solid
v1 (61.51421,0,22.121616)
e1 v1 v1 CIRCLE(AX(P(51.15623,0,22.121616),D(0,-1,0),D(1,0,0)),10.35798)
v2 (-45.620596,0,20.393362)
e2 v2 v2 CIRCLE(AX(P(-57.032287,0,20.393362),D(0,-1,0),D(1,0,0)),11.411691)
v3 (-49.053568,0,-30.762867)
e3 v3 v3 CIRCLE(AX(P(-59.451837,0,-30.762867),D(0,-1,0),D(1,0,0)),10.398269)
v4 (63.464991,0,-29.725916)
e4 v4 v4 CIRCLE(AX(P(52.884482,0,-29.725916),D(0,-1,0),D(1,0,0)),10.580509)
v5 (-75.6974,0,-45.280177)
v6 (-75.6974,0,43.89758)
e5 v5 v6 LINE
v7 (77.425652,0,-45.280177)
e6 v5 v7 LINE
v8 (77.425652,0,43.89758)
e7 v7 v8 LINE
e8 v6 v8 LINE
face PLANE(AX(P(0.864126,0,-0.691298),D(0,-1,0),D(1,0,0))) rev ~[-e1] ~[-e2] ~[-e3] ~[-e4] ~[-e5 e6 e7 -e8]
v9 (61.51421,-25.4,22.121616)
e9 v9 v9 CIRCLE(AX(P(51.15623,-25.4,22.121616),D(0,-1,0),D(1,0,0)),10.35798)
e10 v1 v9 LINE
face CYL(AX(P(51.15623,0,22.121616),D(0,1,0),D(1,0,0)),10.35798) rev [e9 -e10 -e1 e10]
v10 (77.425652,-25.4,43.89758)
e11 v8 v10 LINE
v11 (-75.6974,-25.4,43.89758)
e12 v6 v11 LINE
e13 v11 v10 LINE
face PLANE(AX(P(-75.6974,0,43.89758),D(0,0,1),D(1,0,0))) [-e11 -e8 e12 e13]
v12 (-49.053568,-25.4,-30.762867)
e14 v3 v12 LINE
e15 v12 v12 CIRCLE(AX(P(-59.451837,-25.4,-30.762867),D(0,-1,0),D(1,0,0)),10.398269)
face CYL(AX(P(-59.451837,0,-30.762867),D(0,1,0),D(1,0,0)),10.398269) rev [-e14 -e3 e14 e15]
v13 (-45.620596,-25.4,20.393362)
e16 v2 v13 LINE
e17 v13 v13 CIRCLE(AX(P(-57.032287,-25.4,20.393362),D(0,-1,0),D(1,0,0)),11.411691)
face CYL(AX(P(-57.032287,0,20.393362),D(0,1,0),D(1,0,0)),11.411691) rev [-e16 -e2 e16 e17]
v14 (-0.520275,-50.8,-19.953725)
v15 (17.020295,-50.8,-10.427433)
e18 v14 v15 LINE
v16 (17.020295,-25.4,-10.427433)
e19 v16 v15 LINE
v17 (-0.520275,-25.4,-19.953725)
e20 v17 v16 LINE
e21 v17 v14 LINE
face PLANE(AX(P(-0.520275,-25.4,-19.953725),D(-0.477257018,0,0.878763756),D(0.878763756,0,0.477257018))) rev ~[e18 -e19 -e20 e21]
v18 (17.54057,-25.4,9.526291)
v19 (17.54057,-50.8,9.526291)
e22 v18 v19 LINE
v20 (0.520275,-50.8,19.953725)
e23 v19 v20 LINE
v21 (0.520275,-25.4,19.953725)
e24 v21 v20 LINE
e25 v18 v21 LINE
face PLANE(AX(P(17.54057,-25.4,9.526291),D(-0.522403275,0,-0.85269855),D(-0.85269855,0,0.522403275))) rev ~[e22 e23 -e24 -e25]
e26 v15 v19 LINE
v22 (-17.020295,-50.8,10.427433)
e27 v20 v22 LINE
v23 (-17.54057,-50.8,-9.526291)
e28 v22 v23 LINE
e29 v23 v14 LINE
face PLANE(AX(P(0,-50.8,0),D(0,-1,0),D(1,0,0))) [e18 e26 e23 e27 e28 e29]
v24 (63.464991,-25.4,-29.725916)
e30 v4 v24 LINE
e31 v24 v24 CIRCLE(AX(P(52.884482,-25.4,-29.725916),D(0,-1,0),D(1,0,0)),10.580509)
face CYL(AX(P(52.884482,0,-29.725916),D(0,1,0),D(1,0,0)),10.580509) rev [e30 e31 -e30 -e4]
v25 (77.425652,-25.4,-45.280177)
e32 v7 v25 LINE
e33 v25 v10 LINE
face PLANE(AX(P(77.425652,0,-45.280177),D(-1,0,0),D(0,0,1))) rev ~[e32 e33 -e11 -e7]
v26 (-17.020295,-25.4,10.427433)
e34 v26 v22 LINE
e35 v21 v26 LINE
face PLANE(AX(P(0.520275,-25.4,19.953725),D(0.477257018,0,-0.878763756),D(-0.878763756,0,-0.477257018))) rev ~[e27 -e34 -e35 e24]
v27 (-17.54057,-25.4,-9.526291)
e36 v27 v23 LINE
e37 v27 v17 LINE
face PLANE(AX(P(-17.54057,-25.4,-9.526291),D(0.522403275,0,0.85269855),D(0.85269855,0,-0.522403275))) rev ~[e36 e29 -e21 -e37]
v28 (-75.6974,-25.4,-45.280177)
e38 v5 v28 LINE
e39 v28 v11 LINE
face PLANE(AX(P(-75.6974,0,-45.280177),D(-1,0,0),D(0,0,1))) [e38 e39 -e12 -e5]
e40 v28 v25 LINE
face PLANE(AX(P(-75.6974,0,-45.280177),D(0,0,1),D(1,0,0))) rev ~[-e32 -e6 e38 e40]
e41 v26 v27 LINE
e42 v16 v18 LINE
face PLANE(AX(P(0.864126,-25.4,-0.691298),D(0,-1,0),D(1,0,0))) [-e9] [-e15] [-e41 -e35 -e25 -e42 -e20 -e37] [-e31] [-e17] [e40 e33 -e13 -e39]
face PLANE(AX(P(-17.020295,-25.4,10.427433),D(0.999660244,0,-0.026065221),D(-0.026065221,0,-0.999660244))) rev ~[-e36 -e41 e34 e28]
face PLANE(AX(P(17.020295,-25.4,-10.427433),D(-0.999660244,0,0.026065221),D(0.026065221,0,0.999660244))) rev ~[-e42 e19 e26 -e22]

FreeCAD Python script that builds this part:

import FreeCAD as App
import Part
import Sketcher
Q = App.Units.Quantity

doc = App.newDocument("Part")
body = doc.addObject("PartDesign::Body", "Body")

# Sketch on XZ plane
sketch1 = body.newObject("Sketcher::SketchObject", "Sketch")
sketch1.AttachmentSupport = (doc.getObject("XZ_Plane"), [""])
sketch1.MapMode = "FlatFace"
sketch1.addGeometry([
    Part.LineSegment(App.Vector(-76, 44, 0), App.Vector(-76, -45, 0)),  # 0
    Part.LineSegment(App.Vector(-76, -45, 0), App.Vector(77, -45, 0)),  # 1
    Part.LineSegment(App.Vector(77, -45, 0), App.Vector(77, 44, 0)),  # 2
    Part.LineSegment(App.Vector(77, 44, 0), App.Vector(-76, 44, 0)),  # 3
    Part.Circle(App.Vector(-59, -31, 0), App.Vector(0, 0, 1), 10),  # 4
    Part.Circle(App.Vector(53, -30, 0), App.Vector(0, 0, 1), 11),  # 5
    Part.Circle(App.Vector(-57, 20, 0), App.Vector(0, 0, 1), 11),  # 6
    Part.Circle(App.Vector(51, 22, 0), App.Vector(0, 0, 1), 10),  # 7
], False)
sketch1.addConstraint([
    Sketcher.Constraint("Coincident", 0, 2, 1, 1),
    Sketcher.Constraint("Coincident", 1, 2, 2, 1),
    Sketcher.Constraint("Coincident", 2, 2, 3, 1),
    Sketcher.Constraint("Coincident", 3, 2, 0, 1),
    Sketcher.Constraint("Vertical", 0),
    Sketcher.Constraint("Horizontal", 1),
    Sketcher.Constraint("Vertical", 2),
    Sketcher.Constraint("Horizontal", 3),
    Sketcher.Constraint("Diameter", 4, 20.796538),
    Sketcher.Constraint("Diameter", 6, 22.823382),
    Sketcher.Constraint("Diameter", 7, 20.71596),
    Sketcher.Constraint("Diameter", 5, 21.161018),
    Sketcher.Constraint("DistanceY", 5, 3, 6, 3, Q("1.9731999 in")),
    Sketcher.Constraint("DistanceX", 1, 1, 1, 2, 153.123051),
    Sketcher.Constraint("DistanceX", 0, 2, -1, 1, 75.6974),
    Sketcher.Constraint("DistanceY", 0, 2, 0, 1, 89.177757),
    Sketcher.Constraint("DistanceX", -1, 1, 5, 3, 52.884482),
    Sketcher.Constraint("DistanceY", -1, 1, 6, 3, 20.393362),
    Sketcher.Constraint("DistanceX", -1, 1, 7, 3, 51.15623),
    Sketcher.Constraint("DistanceY", -1, 1, 2, 2, 43.89758),
    Sketcher.Constraint("DistanceX", 4, 3, 5, 3, 112.336319),
    Sketcher.Constraint("DistanceY", 4, 3, 5, 3, 1.036951),
    Sketcher.Constraint("DistanceX", 4, 3, 6, 3, 2.41955),
    Sketcher.Constraint("DistanceY", -1, 1, 7, 3, 22.121616),
])
pad1 = body.newObject("PartDesign::Pad", "Pad")
pad1.Profile = sketch1
pad1.Length = Q("1 in")

# Sketch on XZ plane
sketch2 = body.newObject("Sketcher::SketchObject", "Sketch001")
sketch2.AttachmentSupport = (doc.getObject("XZ_Plane"), [""])
sketch2.MapMode = "FlatFace"
sketch2.AttachmentOffset = App.Placement(App.Vector(0, 0, 1 * 25.4), App.Rotation())
sketch2.addGeometry([
    Part.LineSegment(App.Vector(18, 10, 0), App.Vector(1, 20, 0)),  # 0
    Part.LineSegment(App.Vector(1, 20, 0), App.Vector(-17, 10, 0)),  # 1
    Part.LineSegment(App.Vector(-17, 10, 0), App.Vector(-18, -10, 0)),  # 2
    Part.LineSegment(App.Vector(-18, -10, 0), App.Vector(-1, -20, 0)),  # 3
    Part.LineSegment(App.Vector(-1, -20, 0), App.Vector(17, -10, 0)),  # 4
    Part.LineSegment(App.Vector(17, -10, 0), App.Vector(18, 10, 0)),  # 5
], False)
sketch2.addConstraint([
    Sketcher.Constraint("Coincident", 0, 2, 1, 1),
    Sketcher.Constraint("Coincident", 1, 2, 2, 1),
    Sketcher.Constraint("Coincident", 2, 2, 3, 1),
    Sketcher.Constraint("Coincident", 3, 2, 4, 1),
    Sketcher.Constraint("Coincident", 4, 2, 5, 1),
    Sketcher.Constraint("Coincident", 5, 2, 0, 1),
    Sketcher.Constraint("Symmetric", 0, 2, 3, 2, -1, 1),
    Sketcher.Constraint("Symmetric", 1, 2, 4, 2, -1, 1),
    Sketcher.Constraint("Symmetric", 2, 2, 5, 2, -1, 1),
    Sketcher.Constraint("Equal", 0, 1),
    Sketcher.Constraint("Equal", 1, 2),
    Sketcher.Constraint("DistanceX", 2, 2, -1, 1, 17.54057),
    Sketcher.Constraint("DistanceY", 2, 2, -1, 1, 9.526291),
    Sketcher.Constraint("DistanceX", 1, 2, 0, 2, 17.54057),
    Sketcher.Constraint("DistanceY", 1, 2, 0, 2, 9.526292),
])
pad2 = body.newObject("PartDesign::Pad", "Pad001")
pad2.Profile = sketch2
pad2.Length = Q("1 in")

doc.recompute()
